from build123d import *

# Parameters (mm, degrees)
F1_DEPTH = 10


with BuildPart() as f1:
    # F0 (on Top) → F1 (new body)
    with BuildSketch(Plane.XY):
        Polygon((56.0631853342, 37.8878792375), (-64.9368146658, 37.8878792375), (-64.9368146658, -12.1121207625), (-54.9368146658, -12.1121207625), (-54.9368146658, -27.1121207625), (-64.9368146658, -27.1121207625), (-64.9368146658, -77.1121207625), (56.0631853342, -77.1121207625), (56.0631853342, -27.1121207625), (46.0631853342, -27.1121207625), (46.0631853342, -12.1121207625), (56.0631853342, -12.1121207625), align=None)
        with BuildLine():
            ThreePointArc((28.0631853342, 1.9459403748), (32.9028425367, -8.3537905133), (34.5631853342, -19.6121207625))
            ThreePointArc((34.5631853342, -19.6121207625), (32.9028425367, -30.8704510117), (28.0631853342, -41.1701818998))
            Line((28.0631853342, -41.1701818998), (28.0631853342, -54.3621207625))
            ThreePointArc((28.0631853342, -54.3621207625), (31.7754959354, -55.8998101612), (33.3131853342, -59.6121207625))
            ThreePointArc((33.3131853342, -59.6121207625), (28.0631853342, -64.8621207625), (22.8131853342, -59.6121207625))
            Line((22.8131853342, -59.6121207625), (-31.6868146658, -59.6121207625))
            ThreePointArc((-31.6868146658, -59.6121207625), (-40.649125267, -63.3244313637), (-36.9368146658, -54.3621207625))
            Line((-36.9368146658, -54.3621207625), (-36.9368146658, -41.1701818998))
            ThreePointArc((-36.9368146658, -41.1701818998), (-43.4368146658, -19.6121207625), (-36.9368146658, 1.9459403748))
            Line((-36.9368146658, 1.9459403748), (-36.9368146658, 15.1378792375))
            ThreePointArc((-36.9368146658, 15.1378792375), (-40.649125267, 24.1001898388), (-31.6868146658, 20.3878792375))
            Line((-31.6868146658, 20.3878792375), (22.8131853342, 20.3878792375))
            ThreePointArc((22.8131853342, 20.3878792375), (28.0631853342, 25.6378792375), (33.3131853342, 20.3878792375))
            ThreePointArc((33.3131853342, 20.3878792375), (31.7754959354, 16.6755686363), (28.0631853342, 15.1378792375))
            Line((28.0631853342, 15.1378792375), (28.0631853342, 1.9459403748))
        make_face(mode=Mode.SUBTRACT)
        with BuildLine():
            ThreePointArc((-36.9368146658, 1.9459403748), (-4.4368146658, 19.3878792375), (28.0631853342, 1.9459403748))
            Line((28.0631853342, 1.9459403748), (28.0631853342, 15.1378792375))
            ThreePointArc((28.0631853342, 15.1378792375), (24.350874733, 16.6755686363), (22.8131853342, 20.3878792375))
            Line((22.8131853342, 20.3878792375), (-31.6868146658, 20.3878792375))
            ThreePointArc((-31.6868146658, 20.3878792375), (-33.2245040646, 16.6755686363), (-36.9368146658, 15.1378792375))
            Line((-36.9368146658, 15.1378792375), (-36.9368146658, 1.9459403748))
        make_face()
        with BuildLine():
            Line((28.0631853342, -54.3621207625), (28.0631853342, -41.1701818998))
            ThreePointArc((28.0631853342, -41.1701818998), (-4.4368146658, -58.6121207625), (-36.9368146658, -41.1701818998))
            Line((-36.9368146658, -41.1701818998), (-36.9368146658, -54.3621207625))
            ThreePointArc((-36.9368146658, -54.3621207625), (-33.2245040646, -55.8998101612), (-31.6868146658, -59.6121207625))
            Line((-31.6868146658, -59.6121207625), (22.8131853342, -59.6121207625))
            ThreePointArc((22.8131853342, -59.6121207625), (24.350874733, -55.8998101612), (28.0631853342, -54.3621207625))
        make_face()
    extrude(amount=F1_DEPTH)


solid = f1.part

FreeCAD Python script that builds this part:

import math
import FreeCAD as App
import Part
import Sketcher

V = App.Vector

doc = App.newDocument("Part")
body = doc.addObject("PartDesign::Body", "Body")

# Sketch on XY plane
sketch1 = body.newObject("Sketcher::SketchObject", "Sketch")
sketch1.AttachmentSupport = (doc.getObject("XY_Plane"), [""])
sketch1.MapMode = "FlatFace"
sketch1.addGeometry([
    Part.LineSegment(V(56.063185, 37.887879, 0), V(-64.936815, 37.887879, 0)),  # 0
    Part.LineSegment(V(-64.936815, 37.887879, 0), V(-64.936815, -12.112121, 0)),  # 1
    Part.LineSegment(V(-64.936815, -12.112121, 0), V(-54.936815, -12.112121, 0)),  # 2
    Part.LineSegment(V(-54.936815, -12.112121, 0), V(-54.936815, -27.112121, 0)),  # 3
    Part.LineSegment(V(-54.936815, -27.112121, 0), V(-64.936815, -27.112121, 0)),  # 4
    Part.LineSegment(V(-64.936815, -27.112121, 0), V(-64.936815, -77.112121, 0)),  # 5
    Part.LineSegment(V(-64.936815, -77.112121, 0), V(56.063185, -77.112121, 0)),  # 6
    Part.LineSegment(V(56.063185, -77.112121, 0), V(56.063185, -27.112121, 0)),  # 7
    Part.LineSegment(V(56.063185, -27.112121, 0), V(46.063185, -27.112121, 0)),  # 8
    Part.LineSegment(V(46.063185, -27.112121, 0), V(46.063185, -12.112121, 0)),  # 9
    Part.LineSegment(V(46.063185, -12.112121, 0), V(56.063185, -12.112121, 0)),  # 10
    Part.LineSegment(V(56.063185, -12.112121, 0), V(56.063185, 37.887879, 0)),  # 11
    Part.ArcOfCircle(Part.Circle(V(28.063185, 20.387879, 0), V(0, 0, 1), 5.25), math.radians(-90), math.radians(0)),  # 12
    Part.ArcOfCircle(Part.Circle(V(28.063185, 20.387879, 0), V(0, 0, 1), 5.25), math.radians(180), math.radians(270)),  # 13
    Part.ArcOfCircle(Part.Circle(V(28.063185, 20.387879, 0), V(0, 0, 1), 5.25), math.radians(0), math.radians(180)),  # 14
    Part.ArcOfCircle(Part.Circle(V(-36.936815, 20.387879, 0), V(0, 0, 1), 5.25), math.radians(0), math.radians(270)),  # 15
    Part.ArcOfCircle(Part.Circle(V(-36.936815, 20.387879, 0), V(0, 0, 1), 5.25), math.radians(-90), math.radians(0)),  # 16
    Part.ArcOfCircle(Part.Circle(V(-4.436815, -19.612121, 0), V(0, 0, 1), 39), math.radians(0), math.radians(33.55731)),  # 17
    Part.ArcOfCircle(Part.Circle(V(-4.436815, -19.612121, 0), V(0, 0, 1), 39), math.radians(-33.55731), math.radians(0)),  # 18
    Part.ArcOfCircle(Part.Circle(V(-4.436815, -19.612121, 0), V(0, 0, 1), 39), math.radians(33.55731), math.radians(326.44269)),  # 19
    Part.ArcOfCircle(Part.Circle(V(28.063185, -59.612121, 0), V(0, 0, 1), 5.25), math.radians(0), math.radians(90)),  # 20
    Part.ArcOfCircle(Part.Circle(V(28.063185, -59.612121, 0), V(0, 0, 1), 5.25), math.radians(180), math.radians(360)),  # 21
    Part.ArcOfCircle(Part.Circle(V(28.063185, -59.612121, 0), V(0, 0, 1), 5.25), math.radians(90), math.radians(180)),  # 22
    Part.ArcOfCircle(Part.Circle(V(-36.936815, -59.612121, 0), V(0, 0, 1), 5.25), math.radians(90), math.radians(360)),  # 23
    Part.ArcOfCircle(Part.Circle(V(-36.936815, -59.612121, 0), V(0, 0, 1), 5.25), math.radians(0), math.radians(90)),  # 24
], False)
sketch1.addConstraint([
    Sketcher.Constraint("Coincident", 0, 2, 1, 1),
    Sketcher.Constraint("Coincident", 1, 2, 2, 1),
    Sketcher.Constraint("Coincident", 2, 2, 3, 1),
    Sketcher.Constraint("Coincident", 3, 2, 4, 1),
    Sketcher.Constraint("Coincident", 4, 2, 5, 1),
    Sketcher.Constraint("Coincident", 5, 2, 6, 1),
    Sketcher.Constraint("Coincident", 6, 2, 7, 1),
    Sketcher.Constraint("Coincident", 7, 2, 8, 1),
    Sketcher.Constraint("Coincident", 8, 2, 9, 1),
    Sketcher.Constraint("Coincident", 9, 2, 10, 1),
    Sketcher.Constraint("Coincident", 10, 2, 11, 1),
    Sketcher.Constraint("Coincident", 11, 2, 0, 1),
    Sketcher.Constraint("Tangent", 12, 1, 13, 2),
    Sketcher.Constraint("Tangent", 13, 1, 14, 2),
    Sketcher.Constraint("Tangent", 14, 1, 12, 2),
    Sketcher.Constraint("Tangent", 15, 1, 16, 2),
    Sketcher.Constraint("Coincident", 16, 1, 15, 2),
    Sketcher.Constraint("Tangent", 17, 1, 18, 2),
    Sketcher.Constraint("Tangent", 18, 1, 19, 2),
    Sketcher.Constraint("Tangent", 19, 1, 17, 2),
    Sketcher.Constraint("Tangent", 20, 1, 21, 2),
    Sketcher.Constraint("Tangent", 21, 1, 22, 2),
    Sketcher.Constraint("Tangent", 22, 1, 20, 2),
    Sketcher.Constraint("Tangent", 23, 1, 24, 2),
    Sketcher.Constraint("Coincident", 24, 1, 23, 2),
    Sketcher.Constraint("Horizontal", 0),
    Sketcher.Constraint("Vertical", 1),
    Sketcher.Constraint("Horizontal", 2),
    Sketcher.Constraint("Vertical", 3),
    Sketcher.Constraint("Horizontal", 4),
    Sketcher.Constraint("Vertical", 5),
    Sketcher.Constraint("Horizontal", 6),
    Sketcher.Constraint("Vertical", 7),
    Sketcher.Constraint("Horizontal", 8),
    Sketcher.Constraint("Vertical", 9),
    Sketcher.Constraint("Horizontal", 10),
    Sketcher.Constraint("Vertical", 11),
    Sketcher.Constraint("Equal", 14, 15),
    Sketcher.Constraint("Equal", 16, 20),
    Sketcher.Constraint("Equal", 22, 23),
    Sketcher.Constraint("Horizontal", 14, 3, 15, 3),
    Sketcher.Constraint("Horizontal", 22, 3, 23, 3),
    Sketcher.Constraint("Horizontal", 4, 2, 7, 2),
    Sketcher.Constraint("Horizontal", 2, 2, 9, 2),
    Sketcher.Constraint("Horizontal", 16, 3, 13, 1),
    Sketcher.Constraint("Horizontal", 13, 1, 14, 1),
    Sketcher.Constraint("Horizontal", 14, 1, 15, 1),
    Sketcher.Constraint("Horizontal", 19, 3, 17, 1),
    Sketcher.Constraint("Horizontal", 24, 3, 20, 1),
    Sketcher.Constraint("Horizontal", 20, 1, 21, 1),
    Sketcher.Constraint("Horizontal", 21, 1, 24, 1),
    Sketcher.Constraint("Vertical", 14, 3, 20, 3),
    Sketcher.Constraint("Vertical", 16, 3, 23, 3),
    Sketcher.Constraint("Vertical", 1, 2, 4, 2),
    Sketcher.Constraint("Vertical", 7, 2, 10, 2),
    Sketcher.Constraint("Vertical", 22, 3, 12, 1),
    Sketcher.Constraint("Vertical", 24, 3, 16, 1),
    Sketcher.Constraint("Vertical", 12, 1, 18, 1),
    Sketcher.Constraint("Vertical", 18, 1, 19, 1),
    Sketcher.Constraint("Vertical", 19, 1, 22, 1),
    Sketcher.Constraint("Vertical", 16, 1, 23, 1),
    Sketcher.Constraint("Equal", 4, 8),
    Sketcher.Constraint("Equal", 1, 5),
    Sketcher.Constraint("Radius", 17, 39.0),
    Sketcher.Constraint("DistanceX", 0, 2, 0, 1, 121.0),
    Sketcher.Constraint("DistanceX", 2, 1, 2, 2, 10.0),
    Sketcher.Constraint("DistanceY", 1, 2, 1, 1, 50.0),
    Sketcher.Constraint("DistanceY", 3, 2, 3, 1, 15.0),
    Sketcher.Constraint("Radius", 12, 5.25),
    Sketcher.Constraint("DistanceX", 15, 3, 12, 3, 65.0),
    Sketcher.Constraint("DistanceY", 17, 3, 12, 3, 40.0),
    Sketcher.Constraint("DistanceY", 20, 3, 18, 3, 40.0),
    Sketcher.Constraint("DistanceX", 0, 2, 15, 3, 28.0),
    Sketcher.Constraint("DistanceX", 17, 3, 12, 3, 32.5),
    Sketcher.Constraint("DistanceY", 15, 3, 0, 2, 17.5),
    Sketcher.Constraint("DistanceY", -1, 1, 12, 3, 20.387879),
    Sketcher.Constraint("DistanceX", -1, 1, 12, 3, 28.063185),
])
pad1 = body.newObject("PartDesign::Pad", "Pad")
pad1.Profile = sketch1
pad1.Length = 10

doc.recompute()
